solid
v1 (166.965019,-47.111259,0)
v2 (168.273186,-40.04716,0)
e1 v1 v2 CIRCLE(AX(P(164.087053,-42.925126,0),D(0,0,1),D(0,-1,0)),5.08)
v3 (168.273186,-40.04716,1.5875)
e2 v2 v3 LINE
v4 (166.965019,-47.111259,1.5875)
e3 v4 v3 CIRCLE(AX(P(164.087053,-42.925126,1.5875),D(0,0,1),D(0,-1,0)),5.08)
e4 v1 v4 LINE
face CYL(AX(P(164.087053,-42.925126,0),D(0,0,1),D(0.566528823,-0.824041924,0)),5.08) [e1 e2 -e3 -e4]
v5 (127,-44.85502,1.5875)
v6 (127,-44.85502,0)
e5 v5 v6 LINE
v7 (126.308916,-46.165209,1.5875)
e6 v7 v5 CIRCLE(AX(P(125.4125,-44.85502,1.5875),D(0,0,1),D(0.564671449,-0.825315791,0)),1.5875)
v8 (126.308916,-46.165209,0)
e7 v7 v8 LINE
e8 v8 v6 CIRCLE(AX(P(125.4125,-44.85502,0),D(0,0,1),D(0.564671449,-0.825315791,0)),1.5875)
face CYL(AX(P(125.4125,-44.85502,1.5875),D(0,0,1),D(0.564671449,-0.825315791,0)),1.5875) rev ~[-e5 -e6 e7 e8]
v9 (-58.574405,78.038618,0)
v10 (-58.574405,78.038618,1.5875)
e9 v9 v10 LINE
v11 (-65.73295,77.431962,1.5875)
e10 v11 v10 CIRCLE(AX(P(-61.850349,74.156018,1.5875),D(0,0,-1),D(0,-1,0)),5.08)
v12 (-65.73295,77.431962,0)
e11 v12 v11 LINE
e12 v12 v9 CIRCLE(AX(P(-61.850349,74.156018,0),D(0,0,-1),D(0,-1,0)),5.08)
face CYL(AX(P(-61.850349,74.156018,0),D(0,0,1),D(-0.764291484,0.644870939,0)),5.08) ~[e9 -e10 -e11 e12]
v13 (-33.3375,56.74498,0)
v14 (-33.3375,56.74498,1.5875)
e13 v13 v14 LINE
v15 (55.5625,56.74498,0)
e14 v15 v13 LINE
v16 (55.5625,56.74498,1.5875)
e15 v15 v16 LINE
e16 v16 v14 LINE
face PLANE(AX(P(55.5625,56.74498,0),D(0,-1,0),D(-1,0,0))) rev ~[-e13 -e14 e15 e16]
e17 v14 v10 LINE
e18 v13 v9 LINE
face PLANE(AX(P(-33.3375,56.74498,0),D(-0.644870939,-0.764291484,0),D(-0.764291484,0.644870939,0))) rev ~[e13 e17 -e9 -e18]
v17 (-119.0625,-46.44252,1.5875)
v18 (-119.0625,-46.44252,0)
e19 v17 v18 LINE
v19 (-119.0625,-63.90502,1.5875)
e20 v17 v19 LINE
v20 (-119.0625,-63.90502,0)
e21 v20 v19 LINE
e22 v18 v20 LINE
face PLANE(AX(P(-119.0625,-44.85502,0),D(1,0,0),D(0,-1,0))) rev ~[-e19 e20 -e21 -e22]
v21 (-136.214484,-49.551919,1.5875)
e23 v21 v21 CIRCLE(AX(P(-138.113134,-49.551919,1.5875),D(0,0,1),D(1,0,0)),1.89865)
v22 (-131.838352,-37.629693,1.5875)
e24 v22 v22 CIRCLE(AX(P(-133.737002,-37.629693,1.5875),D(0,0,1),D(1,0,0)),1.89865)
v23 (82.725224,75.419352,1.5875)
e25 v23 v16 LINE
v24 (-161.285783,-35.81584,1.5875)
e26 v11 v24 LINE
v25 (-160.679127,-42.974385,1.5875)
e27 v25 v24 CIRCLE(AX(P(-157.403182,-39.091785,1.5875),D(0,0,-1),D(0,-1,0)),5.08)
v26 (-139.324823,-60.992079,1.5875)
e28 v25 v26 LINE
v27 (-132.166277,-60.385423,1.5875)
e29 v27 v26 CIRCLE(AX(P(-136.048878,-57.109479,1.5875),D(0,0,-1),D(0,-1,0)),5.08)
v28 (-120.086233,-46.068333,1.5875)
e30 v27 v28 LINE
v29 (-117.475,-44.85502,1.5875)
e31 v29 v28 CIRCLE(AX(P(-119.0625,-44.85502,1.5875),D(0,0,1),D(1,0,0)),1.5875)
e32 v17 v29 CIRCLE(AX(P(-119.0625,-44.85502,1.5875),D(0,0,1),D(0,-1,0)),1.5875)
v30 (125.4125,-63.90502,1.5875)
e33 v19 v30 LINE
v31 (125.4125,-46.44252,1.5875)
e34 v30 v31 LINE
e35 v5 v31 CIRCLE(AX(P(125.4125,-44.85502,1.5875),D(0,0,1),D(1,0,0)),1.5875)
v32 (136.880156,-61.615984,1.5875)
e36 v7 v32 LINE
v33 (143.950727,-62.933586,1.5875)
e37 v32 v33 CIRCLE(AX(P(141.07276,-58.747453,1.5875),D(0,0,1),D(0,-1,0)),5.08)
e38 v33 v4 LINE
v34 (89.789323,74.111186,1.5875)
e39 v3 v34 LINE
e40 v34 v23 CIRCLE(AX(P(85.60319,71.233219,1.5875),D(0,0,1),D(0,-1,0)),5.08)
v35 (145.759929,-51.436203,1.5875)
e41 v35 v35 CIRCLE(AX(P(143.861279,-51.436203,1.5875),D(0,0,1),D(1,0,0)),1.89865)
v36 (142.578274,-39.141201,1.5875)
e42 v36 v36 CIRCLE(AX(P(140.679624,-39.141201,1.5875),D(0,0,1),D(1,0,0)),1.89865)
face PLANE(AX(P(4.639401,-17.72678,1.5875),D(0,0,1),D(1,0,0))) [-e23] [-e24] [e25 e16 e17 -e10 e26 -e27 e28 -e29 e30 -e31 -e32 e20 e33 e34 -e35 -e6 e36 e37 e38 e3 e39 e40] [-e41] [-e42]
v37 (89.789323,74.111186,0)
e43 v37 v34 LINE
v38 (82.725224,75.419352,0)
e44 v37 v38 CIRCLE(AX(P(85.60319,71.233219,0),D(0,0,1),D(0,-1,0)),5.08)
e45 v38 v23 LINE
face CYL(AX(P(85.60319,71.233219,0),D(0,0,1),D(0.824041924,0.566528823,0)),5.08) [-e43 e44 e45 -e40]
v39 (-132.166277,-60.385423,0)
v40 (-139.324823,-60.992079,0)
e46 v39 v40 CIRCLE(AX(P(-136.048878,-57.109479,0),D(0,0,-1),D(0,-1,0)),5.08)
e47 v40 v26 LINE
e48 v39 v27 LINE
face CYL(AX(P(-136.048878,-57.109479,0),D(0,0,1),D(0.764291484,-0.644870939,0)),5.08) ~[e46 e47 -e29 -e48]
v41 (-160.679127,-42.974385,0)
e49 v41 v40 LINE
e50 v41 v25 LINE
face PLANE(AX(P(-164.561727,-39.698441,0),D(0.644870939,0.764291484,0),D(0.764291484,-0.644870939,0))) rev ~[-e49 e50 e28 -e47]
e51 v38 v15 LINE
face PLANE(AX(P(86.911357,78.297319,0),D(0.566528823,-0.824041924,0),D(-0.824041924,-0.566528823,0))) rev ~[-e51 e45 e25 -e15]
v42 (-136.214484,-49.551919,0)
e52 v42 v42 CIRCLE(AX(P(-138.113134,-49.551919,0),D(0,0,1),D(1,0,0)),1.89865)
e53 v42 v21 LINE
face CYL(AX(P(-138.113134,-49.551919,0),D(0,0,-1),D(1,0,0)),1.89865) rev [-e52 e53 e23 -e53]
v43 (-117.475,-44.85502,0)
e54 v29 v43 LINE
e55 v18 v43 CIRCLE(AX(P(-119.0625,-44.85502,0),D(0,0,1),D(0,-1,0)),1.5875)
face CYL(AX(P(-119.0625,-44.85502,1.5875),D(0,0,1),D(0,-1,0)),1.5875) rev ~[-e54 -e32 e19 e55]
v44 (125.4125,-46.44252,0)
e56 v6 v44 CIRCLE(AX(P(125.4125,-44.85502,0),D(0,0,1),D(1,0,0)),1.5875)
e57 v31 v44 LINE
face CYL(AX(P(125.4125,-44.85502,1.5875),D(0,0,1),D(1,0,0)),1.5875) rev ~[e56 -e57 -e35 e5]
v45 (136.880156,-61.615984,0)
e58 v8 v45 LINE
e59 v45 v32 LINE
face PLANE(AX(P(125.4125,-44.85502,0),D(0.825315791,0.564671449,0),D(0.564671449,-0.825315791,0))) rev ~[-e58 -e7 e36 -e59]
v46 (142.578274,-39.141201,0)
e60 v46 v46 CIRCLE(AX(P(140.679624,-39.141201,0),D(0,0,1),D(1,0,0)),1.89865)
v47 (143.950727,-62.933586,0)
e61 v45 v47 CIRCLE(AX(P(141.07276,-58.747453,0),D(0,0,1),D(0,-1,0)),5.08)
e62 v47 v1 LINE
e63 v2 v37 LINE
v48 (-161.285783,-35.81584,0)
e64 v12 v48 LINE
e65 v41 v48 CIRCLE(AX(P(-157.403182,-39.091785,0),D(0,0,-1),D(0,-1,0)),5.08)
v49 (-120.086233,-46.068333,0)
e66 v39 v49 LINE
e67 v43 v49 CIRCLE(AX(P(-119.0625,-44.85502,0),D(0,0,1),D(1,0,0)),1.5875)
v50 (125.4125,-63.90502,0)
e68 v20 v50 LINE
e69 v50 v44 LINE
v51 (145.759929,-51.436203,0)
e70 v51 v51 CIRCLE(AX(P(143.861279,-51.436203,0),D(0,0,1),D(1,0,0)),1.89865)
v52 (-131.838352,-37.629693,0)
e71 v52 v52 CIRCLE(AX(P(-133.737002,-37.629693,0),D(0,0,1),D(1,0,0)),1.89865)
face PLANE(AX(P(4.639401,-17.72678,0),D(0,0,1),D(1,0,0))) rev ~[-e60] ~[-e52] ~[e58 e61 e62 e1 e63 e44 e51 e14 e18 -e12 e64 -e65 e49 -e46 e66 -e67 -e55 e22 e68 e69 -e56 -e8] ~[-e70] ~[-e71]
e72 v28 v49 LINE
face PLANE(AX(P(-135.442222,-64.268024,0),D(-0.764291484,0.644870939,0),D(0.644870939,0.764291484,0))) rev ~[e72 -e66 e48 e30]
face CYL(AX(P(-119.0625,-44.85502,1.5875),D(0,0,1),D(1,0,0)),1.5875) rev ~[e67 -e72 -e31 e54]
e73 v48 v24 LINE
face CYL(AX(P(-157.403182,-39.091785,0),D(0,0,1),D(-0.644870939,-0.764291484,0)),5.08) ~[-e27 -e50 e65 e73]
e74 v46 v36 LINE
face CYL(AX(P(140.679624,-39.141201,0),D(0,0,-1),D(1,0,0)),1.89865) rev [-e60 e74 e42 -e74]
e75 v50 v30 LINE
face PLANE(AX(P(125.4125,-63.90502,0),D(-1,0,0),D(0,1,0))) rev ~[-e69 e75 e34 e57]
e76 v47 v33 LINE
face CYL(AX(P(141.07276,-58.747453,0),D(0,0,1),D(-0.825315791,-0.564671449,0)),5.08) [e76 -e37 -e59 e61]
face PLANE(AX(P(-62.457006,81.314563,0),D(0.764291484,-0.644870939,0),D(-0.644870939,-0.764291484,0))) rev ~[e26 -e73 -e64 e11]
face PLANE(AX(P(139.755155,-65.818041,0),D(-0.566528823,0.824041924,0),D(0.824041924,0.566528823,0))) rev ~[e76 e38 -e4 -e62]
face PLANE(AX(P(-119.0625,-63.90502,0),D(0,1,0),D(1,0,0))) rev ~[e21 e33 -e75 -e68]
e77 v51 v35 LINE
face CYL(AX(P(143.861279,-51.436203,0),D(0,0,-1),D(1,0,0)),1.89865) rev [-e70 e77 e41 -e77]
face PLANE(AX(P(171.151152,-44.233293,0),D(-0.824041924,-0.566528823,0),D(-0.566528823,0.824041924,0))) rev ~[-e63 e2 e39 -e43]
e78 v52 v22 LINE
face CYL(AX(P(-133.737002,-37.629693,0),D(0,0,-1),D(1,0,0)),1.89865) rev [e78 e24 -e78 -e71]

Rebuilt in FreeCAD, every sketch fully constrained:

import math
import FreeCAD as App
import Part
import Sketcher
from FreeCAD import Vector
Q = App.Units.Quantity


def edges_at(feature, points):
    """Names of the edges that pass closest to the given points."""
    edges = feature.Shape.Edges
    near = lambda p: min(range(len(edges)), key=lambda i: edges[i].distToShape(Part.Vertex(*p))[0])
    return sorted({f"Edge{near(p) + 1}" for p in points})

doc = App.newDocument("Part")
body = doc.addObject("PartDesign::Body", "Body")

# Sketch on XY plane
sketch1 = body.newObject("Sketcher::SketchObject", "Sketch")
sketch1.AttachmentSupport = (doc.getObject("XY_Plane"), [""])
sketch1.MapMode = "FlatFace"
sketch1.addGeometry([
    Part.LineSegment(Vector(-119.1, -44.9, 0), Vector(-119.1, -63.9, 0)),  # 0
    Part.LineSegment(Vector(-119.1, -63.9, 0), Vector(125.4, -63.9, 0)),  # 1
    Part.LineSegment(Vector(125.4, -63.9, 0), Vector(125.4, -44.9, 0)),  # 2
    Part.LineSegment(Vector(125.4, -44.9, 0), Vector(139.8, -65.8, 0)),  # 3
    Part.LineSegment(Vector(139.8, -65.8, 0), Vector(171.2, -44.2, 0)),  # 4
    Part.LineSegment(Vector(171.2, -44.2, 0), Vector(86.9, 78.3, 0)),  # 5
    Part.LineSegment(Vector(86.9, 78.3, 0), Vector(55.6, 56.7, 0)),  # 6
    Part.LineSegment(Vector(55.6, 56.7, 0), Vector(-33.3, 56.7, 0)),  # 7
    Part.LineSegment(Vector(-33.3, 56.7, 0), Vector(-62.5, 81.3, 0)),  # 8
    Part.LineSegment(Vector(-62.5, 81.3, 0), Vector(-164.6, -39.7, 0)),  # 9
    Part.LineSegment(Vector(-164.6, -39.7, 0), Vector(-135.4, -64.3, 0)),  # 10
    Part.LineSegment(Vector(-135.4, -64.3, 0), Vector(-119.1, -44.9, 0)),  # 11
    Part.Circle(Vector(-138.1, -49.6, 0), Vector(0, 0, 1), 1.9),  # 12
    Part.Circle(Vector(143.9, -51.4, 0), Vector(0, 0, 1), 1.9),  # 13
    Part.Circle(Vector(-133.7, -37.6, 0), Vector(0, 0, 1), 1.9),  # 14
    Part.Circle(Vector(140.7, -39.1, 0), Vector(0, 0, 1), 1.9),  # 15
], False)
sketch1.addConstraint([
    Sketcher.Constraint("Coincident", 0, 2, 1, 1),
    Sketcher.Constraint("Coincident", 1, 2, 2, 1),
    Sketcher.Constraint("Coincident", 2, 2, 3, 1),
    Sketcher.Constraint("Coincident", 3, 2, 4, 1),
    Sketcher.Constraint("Coincident", 4, 2, 5, 1),
    Sketcher.Constraint("Coincident", 5, 2, 6, 1),
    Sketcher.Constraint("Coincident", 6, 2, 7, 1),
    Sketcher.Constraint("Coincident", 7, 2, 8, 1),
    Sketcher.Constraint("Coincident", 8, 2, 9, 1),
    Sketcher.Constraint("Coincident", 9, 2, 10, 1),
    Sketcher.Constraint("Coincident", 10, 2, 11, 1),
    Sketcher.Constraint("Coincident", 11, 2, 0, 1),
    Sketcher.Constraint("Vertical", 0),
    Sketcher.Constraint("Horizontal", 1),
    Sketcher.Constraint("Vertical", 2),
    Sketcher.Constraint("Horizontal", 7),
    Sketcher.Constraint("Equal", 12, 13),
    Sketcher.Constraint("Equal", 13, 14),
    Sketcher.Constraint("Equal", 14, 15),
    Sketcher.Constraint("Perpendicular", 4, 5),
    Sketcher.Constraint("Perpendicular", 5, 6),
    Sketcher.Constraint("Perpendicular", 8, 9),
    Sketcher.Constraint("Perpendicular", 9, 10),
    Sketcher.Constraint("Perpendicular", 10, 11),
    Sketcher.Constraint("Horizontal", 2, 2, 11, 2),
    Sketcher.Constraint("Equal", 4, 8),
    Sketcher.Constraint("Equal", 8, 10),
    Sketcher.Constraint("Equal", 3, 11),
    Sketcher.Constraint("Distance", 3, Q("1 in")),
    Sketcher.Constraint("DistanceX", 7, 2, 7, 1, Q("3.5 in")),
    Sketcher.Constraint("DistanceY", 2, 2, 6, 2, Q("4 in")),
    Sketcher.Constraint("Distance", 4, Q("1.5 in")),
    Sketcher.Constraint("Diameter", 12, Q("0.1495 in")),
    Sketcher.Constraint("DistanceY", 0, 2, 0, 1, Q("0.75 in")),
    Sketcher.Constraint("DistanceX", 1, 1, 1, 2, Q("9.625 in")),
    Sketcher.Constraint("DistanceX", 6, 2, 2, 2, Q("2.75 in")),
    Sketcher.Constraint("DistanceX", 0, 2, -1, 1, Q("4.6875 in")),
    Sketcher.Constraint("DistanceX", 14, 3, -1, 1, 133.737002),
    Sketcher.Constraint("DistanceY", 15, 3, -1, 1, 39.141201),
    Sketcher.Constraint("DistanceY", 13, 3, 15, 3, 12.295002),
    Sketcher.Constraint("DistanceY", 0, 2, 12, 3, 14.353101),
    Sketcher.Constraint("DistanceY", 12, 3, -1, 1, 49.551919),
    Sketcher.Constraint("DistanceX", -1, 1, 13, 3, 143.861279),
    Sketcher.Constraint("DistanceY", 3, 2, -1, 1, 65.818041),
    Sketcher.Constraint("DistanceY", -1, 1, 5, 2, 78.297319),
    Sketcher.Constraint("DistanceY", 13, 3, 14, 3, 13.80651),
    Sketcher.Constraint("DistanceX", 12, 3, 15, 3, 278.792758),
    Sketcher.Constraint("DistanceX", 3, 2, 15, 3, 0.924469),
])
pad1 = body.newObject("PartDesign::Pad", "Pad")
pad1.Profile = sketch1
pad1.Length = Q("0.0625 in")
doc.recompute()

fillet = body.newObject("PartDesign::Fillet", "Fillet")
fillet.Base = (pad1, edges_at(pad1, [
    (-164.562, -39.698, 0.794),
    (-135.442, -64.268, 0.794),
    (139.755, -65.818, 0.794),
    (171.151, -44.233, 0.794),
    (86.911, 78.297, 0.794),
    (-62.457, 81.315, 0.794),
]))
fillet.Radius = Q("0.2 in")

# Sketch on XY plane
sketch2 = body.newObject("Sketcher::SketchObject", "Sketch001")
sketch2.AttachmentSupport = (doc.getObject("XY_Plane"), [""])
sketch2.MapMode = "FlatFace"
sketch2.AttachmentOffset = App.Placement(Vector(0, 0, 0.0625 * 25.4), App.Rotation())
sketch2.addGeometry([
    Part.ArcOfCircle(Part.Circle(Vector(125.4, -44.9, 0), Vector(0, 0, 1), 1.6), math.radians(0), math.radians(270)),  # 0
    Part.LineSegment(Vector(125.4, -46.4, 0), Vector(125.4, -44.9, 0)),  # 1
    Part.LineSegment(Vector(125.4, -44.9, 0), Vector(126.3, -46.2, 0)),  # 2
    Part.ArcOfCircle(Part.Circle(Vector(125.4, -44.9, 0), Vector(0, 0, 1), 1.6), math.radians(-56), math.radians(0)),  # 3
    Part.ArcOfCircle(Part.Circle(Vector(-119.1, -44.9, 0), Vector(0, 0, 1), 1.6), math.radians(-90), math.radians(0)),  # 4
    Part.ArcOfCircle(Part.Circle(Vector(-119.1, -44.9, 0), Vector(0, 0, 1), 1.6), math.radians(0), math.radians(230)),  # 5
    Part.LineSegment(Vector(-120.1, -46.1, 0), Vector(-119.1, -44.9, 0)),  # 6
    Part.LineSegment(Vector(-119.1, -44.9, 0), Vector(-119.1, -46.4, 0)),  # 7
], False)
sketch2.addConstraint([
    Sketcher.Constraint("Coincident", 0, 2, 1, 1),
    Sketcher.Constraint("Coincident", 1, 2, 2, 1),
    Sketcher.Constraint("Coincident", 2, 2, 3, 1),
    Sketcher.Constraint("Tangent", 3, 2, 0, 1),
    Sketcher.Constraint("Tangent", 4, 2, 5, 1),
    Sketcher.Constraint("Coincident", 5, 2, 6, 1),
    Sketcher.Constraint("Coincident", 6, 2, 7, 1),
    Sketcher.Constraint("Coincident", 7, 2, 4, 1),
    Sketcher.Constraint("Vertical", 1),
    Sketcher.Constraint("Vertical", 7),
    Sketcher.Constraint("Coincident", 1, 2, 0, 3),
    Sketcher.Constraint("Coincident", 6, 2, 4, 3),
    Sketcher.Constraint("Equal", 0, 3),
    Sketcher.Constraint("Equal", 3, 4),
    Sketcher.Constraint("Equal", 4, 5),
    Sketcher.Constraint("Horizontal", 3, 3, 4, 3),
    Sketcher.Constraint("Horizontal", 1, 2, 3, 2),
    Sketcher.Constraint("Horizontal", 3, 2, 4, 2),
    Sketcher.Constraint("DistanceX", -1, 1, 3, 2, Q("5 in")),
    Sketcher.Constraint("Radius", 0, Q("0.0625 in")),
    Sketcher.Constraint("DistanceX", 4, 3, -1, 1, Q("4.6875 in")),
    Sketcher.Constraint("DistanceY", 0, 3, -1, 1, 44.85502),
    Sketcher.Constraint("DistanceY", 2, 2, -1, 1, 46.165209),
    Sketcher.Constraint("DistanceX", 5, 2, -1, 1, 120.086233),
])
pocket1 = body.newObject("PartDesign::Pocket", "Pocket")
pocket1.Profile = sketch2
pocket1.Type = "ThroughAll"

doc.recompute()
